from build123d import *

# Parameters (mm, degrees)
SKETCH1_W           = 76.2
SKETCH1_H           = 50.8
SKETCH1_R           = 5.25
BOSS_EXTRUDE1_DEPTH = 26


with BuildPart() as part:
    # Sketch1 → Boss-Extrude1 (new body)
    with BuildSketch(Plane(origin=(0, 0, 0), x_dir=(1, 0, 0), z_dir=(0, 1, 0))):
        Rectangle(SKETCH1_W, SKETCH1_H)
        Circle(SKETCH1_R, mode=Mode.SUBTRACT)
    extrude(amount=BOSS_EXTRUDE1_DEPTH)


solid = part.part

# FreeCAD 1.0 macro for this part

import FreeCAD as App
import Part
import Sketcher
Q = App.Units.Quantity


def add_polygon(sketch, points):
    """Adds a closed chain of lines whose ends are joined by coincident constraints."""
    first, n = sketch.GeometryCount, len(points)
    for a, b in zip(points, points[1:] + points[:1]):
        sketch.addGeometry(Part.LineSegment(App.Vector(*a, 0), App.Vector(*b, 0)), False)
    for i in range(n):
        sketch.addConstraint(Sketcher.Constraint("Coincident", first + i, 2, first + (i + 1) % n, 1))

doc = App.newDocument("Part")
body = doc.addObject("PartDesign::Body", "Body")

# Sketch on XZ plane
sketch1 = body.newObject("Sketcher::SketchObject", "Sketch")
sketch1.AttachmentSupport = (doc.getObject("XZ_Plane"), [""])
sketch1.MapMode = "FlatFace"
add_polygon(sketch1, [(-38, -25), (-38, 25), (38, 25), (38, -25)])  # lines 0-3
sketch1.addGeometry(Part.Circle(App.Vector(0, 0, 0), App.Vector(0, 0, 1), 5), False)  # 4
sketch1.addConstraint(Sketcher.Constraint("Vertical", 0))
sketch1.addConstraint(Sketcher.Constraint("Horizontal", 1))
sketch1.addConstraint(Sketcher.Constraint("Vertical", 2))
sketch1.addConstraint(Sketcher.Constraint("Horizontal", 3))
sketch1.addConstraint(Sketcher.Constraint("Coincident", 4, 3, -1, 1))
sketch1.addConstraint(Sketcher.Constraint("Symmetric", 0, 2, 2, 2, -1, 1))
sketch1.addConstraint(Sketcher.Constraint("Diameter", 4, Q("10.5 mm")))
sketch1.addConstraint(Sketcher.Constraint("DistanceX", 1, 1, 1, 2, Q("76.2 mm")))
sketch1.addConstraint(Sketcher.Constraint("DistanceY", 0, 1, 0, 2, Q("50.8 mm")))
pad1 = body.newObject("PartDesign::Pad", "Pad")
pad1.Profile = sketch1
pad1.Length = 26
pad1.Reversed = True

doc.recompute()
